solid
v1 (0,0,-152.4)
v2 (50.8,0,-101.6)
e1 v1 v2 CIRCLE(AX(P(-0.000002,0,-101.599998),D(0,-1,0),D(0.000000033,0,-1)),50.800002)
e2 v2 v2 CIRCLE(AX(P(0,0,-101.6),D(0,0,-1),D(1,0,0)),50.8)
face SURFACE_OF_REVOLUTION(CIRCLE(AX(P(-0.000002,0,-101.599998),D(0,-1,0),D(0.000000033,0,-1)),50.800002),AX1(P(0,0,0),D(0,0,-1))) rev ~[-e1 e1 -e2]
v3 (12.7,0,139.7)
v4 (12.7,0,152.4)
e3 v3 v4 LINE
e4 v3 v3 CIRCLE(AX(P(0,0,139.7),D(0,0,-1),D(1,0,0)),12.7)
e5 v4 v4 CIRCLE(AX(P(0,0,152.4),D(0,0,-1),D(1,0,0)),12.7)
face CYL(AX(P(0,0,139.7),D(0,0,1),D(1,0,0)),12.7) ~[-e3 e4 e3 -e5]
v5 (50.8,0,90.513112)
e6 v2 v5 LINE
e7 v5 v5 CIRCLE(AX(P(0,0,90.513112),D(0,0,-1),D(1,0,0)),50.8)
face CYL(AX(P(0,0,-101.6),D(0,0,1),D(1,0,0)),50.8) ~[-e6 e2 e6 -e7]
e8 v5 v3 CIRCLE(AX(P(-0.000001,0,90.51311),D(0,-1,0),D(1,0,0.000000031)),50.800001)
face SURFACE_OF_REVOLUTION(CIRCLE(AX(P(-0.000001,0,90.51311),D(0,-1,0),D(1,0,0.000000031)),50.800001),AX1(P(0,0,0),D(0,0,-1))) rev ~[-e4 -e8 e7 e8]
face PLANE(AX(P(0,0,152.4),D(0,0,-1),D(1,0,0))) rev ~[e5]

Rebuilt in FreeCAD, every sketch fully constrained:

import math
import FreeCAD as App
import Part
import Sketcher
from FreeCAD import Vector
Q = App.Units.Quantity

doc = App.newDocument("Part")
body = doc.addObject("PartDesign::Body", "Body")

sketch1 = doc.addObject("Sketcher::SketchObject", "Sketch")
body.addObject(sketch1)
sketch1.AttachmentSupport = (doc.XZ_Plane, [""])
sketch1.MapMode = "FlatFace"
sketch1.addGeometry([
    Part.LineSegment(Vector(12.7, 152.4, 0), Vector(0, 152.4, 0)),
    Part.LineSegment(Vector(0, 152.4, 0), Vector(0, -152.4, 0)),
    Part.ArcOfCircle(Part.Circle(Vector(-0.000002, -101.599998, 0), Vector(0, 0, 1), 50.800002), math.radians(-89.999998), math.radians(-0.000002)),
    Part.LineSegment(Vector(50.8, -101.6, 0), Vector(50.8, 90.513112, 0)),
    Part.ArcOfCircle(Part.Circle(Vector(-0.000001, 90.51311, 0), Vector(0, 0, 1), 50.800001), math.radians(0.000002), math.radians(75.522487)),
    Part.LineSegment(Vector(12.7, 139.7, 0), Vector(12.7, 152.4, 0)),
], False)
sketch1.addConstraint([
    Sketcher.Constraint("Coincident", 0, 2, 1, 1),
    Sketcher.Constraint("Coincident", 1, 2, 2, 1),
    Sketcher.Constraint("Tangent", 2, 2, 3, 1),
    Sketcher.Constraint("Tangent", 3, 2, 4, 1),
    Sketcher.Constraint("Coincident", 4, 2, 5, 1),
    Sketcher.Constraint("Coincident", 5, 2, 0, 1),
    Sketcher.Constraint("Horizontal", 0),
    Sketcher.Constraint("Vertical", 1),
    Sketcher.Constraint("Vertical", 3),
    Sketcher.Constraint("Vertical", 5),
    Sketcher.Constraint("Equal", 2, 4),
    Sketcher.Constraint("Symmetric", 0, 2, 1, 2, -1, 1),
    Sketcher.Constraint("PointOnObject", 2, 3, -2),
    Sketcher.Constraint("Equal", 0, 5),
    Sketcher.Constraint("Radius", 2, Q("2.0000001 in")),
    Sketcher.Constraint("DistanceY", 1, 2, 1, 1, Q("12 in")),
    Sketcher.Constraint("DistanceX", 0, 2, 0, 1, Q("0.5 in")),
])
revolution = doc.addObject("PartDesign::Revolution", "Revolution")
body.addObject(revolution)
revolution.Profile = sketch1
revolution.ReferenceAxis = (sketch1, ["V_Axis"])
revolution.Angle = 360

doc.recompute()
